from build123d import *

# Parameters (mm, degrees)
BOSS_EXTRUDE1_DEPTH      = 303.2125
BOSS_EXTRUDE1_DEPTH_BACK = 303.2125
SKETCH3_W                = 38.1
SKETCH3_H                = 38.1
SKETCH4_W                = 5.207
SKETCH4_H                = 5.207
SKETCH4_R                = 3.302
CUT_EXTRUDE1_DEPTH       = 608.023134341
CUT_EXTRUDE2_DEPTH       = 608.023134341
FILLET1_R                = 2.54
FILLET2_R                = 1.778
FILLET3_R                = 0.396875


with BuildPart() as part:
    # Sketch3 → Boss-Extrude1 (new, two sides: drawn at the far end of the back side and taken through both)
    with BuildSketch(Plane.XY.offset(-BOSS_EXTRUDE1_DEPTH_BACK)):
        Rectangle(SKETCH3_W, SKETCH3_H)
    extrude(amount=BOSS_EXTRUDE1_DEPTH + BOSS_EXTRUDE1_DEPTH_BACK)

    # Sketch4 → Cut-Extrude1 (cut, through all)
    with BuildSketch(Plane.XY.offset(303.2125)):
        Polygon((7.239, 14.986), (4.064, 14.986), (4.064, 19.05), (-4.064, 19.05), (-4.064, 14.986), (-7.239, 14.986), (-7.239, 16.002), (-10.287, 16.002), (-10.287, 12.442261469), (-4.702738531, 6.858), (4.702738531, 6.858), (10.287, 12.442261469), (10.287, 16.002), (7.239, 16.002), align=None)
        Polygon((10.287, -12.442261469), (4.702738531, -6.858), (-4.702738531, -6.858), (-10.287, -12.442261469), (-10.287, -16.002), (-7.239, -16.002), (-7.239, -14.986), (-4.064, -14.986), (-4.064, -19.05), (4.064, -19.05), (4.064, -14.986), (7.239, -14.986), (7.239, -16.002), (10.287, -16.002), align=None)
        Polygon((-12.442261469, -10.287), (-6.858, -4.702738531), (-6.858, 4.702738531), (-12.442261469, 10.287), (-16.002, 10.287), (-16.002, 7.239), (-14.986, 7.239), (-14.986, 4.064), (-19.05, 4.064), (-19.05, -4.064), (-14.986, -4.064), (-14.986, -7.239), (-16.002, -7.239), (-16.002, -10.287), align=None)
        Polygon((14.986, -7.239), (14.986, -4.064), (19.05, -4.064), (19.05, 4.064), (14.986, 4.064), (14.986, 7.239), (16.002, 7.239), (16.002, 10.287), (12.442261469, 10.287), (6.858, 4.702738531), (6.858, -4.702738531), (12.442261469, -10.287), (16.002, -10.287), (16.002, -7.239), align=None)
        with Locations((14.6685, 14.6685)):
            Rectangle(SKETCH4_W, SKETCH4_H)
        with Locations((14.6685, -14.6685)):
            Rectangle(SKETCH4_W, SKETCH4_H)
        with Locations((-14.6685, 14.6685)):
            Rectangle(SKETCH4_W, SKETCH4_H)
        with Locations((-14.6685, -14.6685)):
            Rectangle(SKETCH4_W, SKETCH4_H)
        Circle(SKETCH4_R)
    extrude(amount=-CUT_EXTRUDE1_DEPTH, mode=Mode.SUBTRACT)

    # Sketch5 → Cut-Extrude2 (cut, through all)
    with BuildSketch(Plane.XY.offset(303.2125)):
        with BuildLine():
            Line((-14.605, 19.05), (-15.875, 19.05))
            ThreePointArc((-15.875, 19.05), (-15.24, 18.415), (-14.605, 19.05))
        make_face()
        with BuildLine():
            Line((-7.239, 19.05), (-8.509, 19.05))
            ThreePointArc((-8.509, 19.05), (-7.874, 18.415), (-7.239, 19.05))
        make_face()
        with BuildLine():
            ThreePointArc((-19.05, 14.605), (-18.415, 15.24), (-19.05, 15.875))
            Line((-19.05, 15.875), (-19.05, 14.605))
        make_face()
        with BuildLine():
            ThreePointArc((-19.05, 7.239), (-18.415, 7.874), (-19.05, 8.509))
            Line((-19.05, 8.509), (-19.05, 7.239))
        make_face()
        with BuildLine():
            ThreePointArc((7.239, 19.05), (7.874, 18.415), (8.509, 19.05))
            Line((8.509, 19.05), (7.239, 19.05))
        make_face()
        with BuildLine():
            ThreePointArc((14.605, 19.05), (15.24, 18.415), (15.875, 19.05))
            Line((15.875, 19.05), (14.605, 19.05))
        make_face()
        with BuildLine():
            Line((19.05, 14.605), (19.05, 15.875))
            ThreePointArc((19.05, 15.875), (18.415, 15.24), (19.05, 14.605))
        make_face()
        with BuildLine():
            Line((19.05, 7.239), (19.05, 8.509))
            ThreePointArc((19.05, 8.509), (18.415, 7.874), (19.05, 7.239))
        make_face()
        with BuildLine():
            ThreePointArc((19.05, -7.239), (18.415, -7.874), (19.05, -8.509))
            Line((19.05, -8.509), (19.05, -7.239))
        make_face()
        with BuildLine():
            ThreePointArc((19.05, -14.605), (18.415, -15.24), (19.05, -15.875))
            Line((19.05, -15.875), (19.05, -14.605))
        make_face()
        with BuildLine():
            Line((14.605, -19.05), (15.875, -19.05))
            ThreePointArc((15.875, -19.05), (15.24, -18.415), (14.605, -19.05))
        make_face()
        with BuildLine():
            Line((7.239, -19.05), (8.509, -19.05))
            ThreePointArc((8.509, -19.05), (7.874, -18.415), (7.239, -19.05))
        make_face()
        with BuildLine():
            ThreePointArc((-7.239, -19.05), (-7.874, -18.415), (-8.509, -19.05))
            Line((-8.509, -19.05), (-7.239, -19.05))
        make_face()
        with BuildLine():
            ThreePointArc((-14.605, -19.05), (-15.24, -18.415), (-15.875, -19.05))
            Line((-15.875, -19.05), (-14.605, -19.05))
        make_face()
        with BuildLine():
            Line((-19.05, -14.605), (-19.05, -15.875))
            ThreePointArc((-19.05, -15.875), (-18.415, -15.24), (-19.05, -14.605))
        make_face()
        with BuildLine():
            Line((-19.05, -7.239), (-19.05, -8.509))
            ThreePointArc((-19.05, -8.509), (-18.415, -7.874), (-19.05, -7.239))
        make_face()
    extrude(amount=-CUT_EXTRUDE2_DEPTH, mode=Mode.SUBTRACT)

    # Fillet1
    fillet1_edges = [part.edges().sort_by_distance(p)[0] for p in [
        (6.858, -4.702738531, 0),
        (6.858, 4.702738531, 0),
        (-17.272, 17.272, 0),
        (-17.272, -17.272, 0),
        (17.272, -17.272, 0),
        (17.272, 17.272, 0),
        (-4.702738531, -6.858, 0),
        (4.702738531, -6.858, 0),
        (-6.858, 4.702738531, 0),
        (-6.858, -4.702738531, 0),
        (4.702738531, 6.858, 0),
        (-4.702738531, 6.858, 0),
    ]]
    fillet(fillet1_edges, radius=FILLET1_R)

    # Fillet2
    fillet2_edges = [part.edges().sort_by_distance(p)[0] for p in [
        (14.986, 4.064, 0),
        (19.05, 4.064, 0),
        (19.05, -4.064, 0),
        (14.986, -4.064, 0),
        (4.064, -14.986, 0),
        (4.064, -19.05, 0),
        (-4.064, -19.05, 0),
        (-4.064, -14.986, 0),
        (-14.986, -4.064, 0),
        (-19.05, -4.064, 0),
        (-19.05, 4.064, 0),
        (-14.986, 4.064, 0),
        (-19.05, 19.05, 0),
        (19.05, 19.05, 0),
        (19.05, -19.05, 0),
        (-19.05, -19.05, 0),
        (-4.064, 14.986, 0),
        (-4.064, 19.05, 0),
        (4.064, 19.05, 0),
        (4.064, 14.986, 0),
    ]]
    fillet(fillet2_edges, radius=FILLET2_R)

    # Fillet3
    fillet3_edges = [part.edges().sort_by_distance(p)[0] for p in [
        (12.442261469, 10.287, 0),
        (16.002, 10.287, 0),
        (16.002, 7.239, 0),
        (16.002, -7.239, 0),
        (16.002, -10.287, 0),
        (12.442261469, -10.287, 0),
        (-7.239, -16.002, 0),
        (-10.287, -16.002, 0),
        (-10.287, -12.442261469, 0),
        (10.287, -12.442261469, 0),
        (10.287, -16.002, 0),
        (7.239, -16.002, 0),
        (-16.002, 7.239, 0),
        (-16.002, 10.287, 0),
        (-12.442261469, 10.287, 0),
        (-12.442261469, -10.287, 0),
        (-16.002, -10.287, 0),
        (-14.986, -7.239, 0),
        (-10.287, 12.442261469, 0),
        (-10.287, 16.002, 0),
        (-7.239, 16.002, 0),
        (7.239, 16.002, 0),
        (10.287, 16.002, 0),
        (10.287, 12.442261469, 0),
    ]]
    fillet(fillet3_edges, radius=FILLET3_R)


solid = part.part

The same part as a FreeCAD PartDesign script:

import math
import FreeCAD as App
import Part
import Sketcher
from FreeCAD import Vector
Q = App.Units.Quantity


def edges_at(feature, points):
    """Names of the edges that pass closest to the given points."""
    edges = feature.Shape.Edges
    near = lambda p: min(range(len(edges)), key=lambda i: edges[i].distToShape(Part.Vertex(*p))[0])
    return sorted({f"Edge{near(p) + 1}" for p in points})


def add_polygon(sketch, points):
    """Adds a closed chain of lines whose ends are joined by coincident constraints."""
    first, n = sketch.GeometryCount, len(points)
    for a, b in zip(points, points[1:] + points[:1]):
        sketch.addGeometry(Part.LineSegment(App.Vector(*a, 0), App.Vector(*b, 0)), False)
    for i in range(n):
        sketch.addConstraint(Sketcher.Constraint("Coincident", first + i, 2, first + (i + 1) % n, 1))

doc = App.newDocument("Part")
body = doc.addObject("PartDesign::Body", "Body")

# Sketch on XY plane
sketch1 = doc.addObject("Sketcher::SketchObject", "Sketch")
body.addObject(sketch1)
sketch1.AttachmentSupport = (doc.XY_Plane, [""])
sketch1.MapMode = "FlatFace"
add_polygon(sketch1, [(-19, 19), (-19, -19), (19, -19), (19, 19)])  # lines 0-3
sketch1.addConstraint(Sketcher.Constraint("Vertical", 0))
sketch1.addConstraint(Sketcher.Constraint("Horizontal", 1))
sketch1.addConstraint(Sketcher.Constraint("Vertical", 2))
sketch1.addConstraint(Sketcher.Constraint("Horizontal", 3))
sketch1.addConstraint(Sketcher.Constraint("Symmetric", 0, 2, 2, 2, -1, 1))
sketch1.addConstraint(Sketcher.Constraint("Equal", 3, 0))
sketch1.addConstraint(Sketcher.Constraint("DistanceX", 1, 1, 1, 2, Q("1.5 in")))
pad1 = doc.addObject("PartDesign::Pad", "Pad")
body.addObject(pad1)
pad1.Profile = sketch1
pad1.Type = "TwoLengths"
pad1.Length = Q("11.9375 in")
pad1.Length2 = Q("11.9375 in")

# Sketch on XY plane
sketch2 = doc.addObject("Sketcher::SketchObject", "Sketch001")
body.addObject(sketch2)
sketch2.AttachmentSupport = (doc.XY_Plane, [""])
sketch2.MapMode = "FlatFace"
sketch2.AttachmentOffset = App.Placement(Vector(0, 0, 11.9375 * 25.4), App.Rotation())
add_polygon(sketch2, [(7.2, 15), (4.1, 15), (4.1, 19.1), (-4.1, 19.1), (-4.1, 15), (-7.2, 15), (-7.2, 16), (-10.3, 16), (-10.3, 12.4), (-4.7, 6.9), (4.7, 6.9), (10.3, 12.4), (10.3, 16), (7.2, 16)])  # lines 0-13
add_polygon(sketch2, [(10.3, -12.4), (4.7, -6.9), (-4.7, -6.9), (-10.3, -12.4), (-10.3, -16), (-7.2, -16), (-7.2, -15), (-4.1, -15), (-4.1, -19.1), (4.1, -19.1), (4.1, -15), (7.2, -15), (7.2, -16), (10.3, -16)])  # lines 14-27
add_polygon(sketch2, [(-12.4, -10.3), (-6.9, -4.7), (-6.9, 4.7), (-12.4, 10.3), (-16, 10.3), (-16, 7.2), (-15, 7.2), (-15, 4.1), (-19.1, 4.1), (-19.1, -4.1), (-15, -4.1), (-15, -7.2), (-16, -7.2), (-16, -10.3)])  # lines 28-41
add_polygon(sketch2, [(15, -7.2), (15, -4.1), (19.1, -4.1), (19.1, 4.1), (15, 4.1), (15, 7.2), (16, 7.2), (16, 10.3), (12.4, 10.3), (6.9, 4.7), (6.9, -4.7), (12.4, -10.3), (16, -10.3), (16, -7.2)])  # lines 42-55
add_polygon(sketch2, [(12.1, 17.3), (12.1, 12.1), (17.3, 12.1), (17.3, 17.3)])  # lines 56-59
add_polygon(sketch2, [(12.1, -12.1), (12.1, -17.3), (17.3, -17.3), (17.3, -12.1)])  # lines 60-63
add_polygon(sketch2, [(-17.3, 17.3), (-17.3, 12.1), (-12.1, 12.1), (-12.1, 17.3)])  # lines 64-67
add_polygon(sketch2, [(-17.3, -12.1), (-17.3, -17.3), (-12.1, -17.3), (-12.1, -12.1)])  # lines 68-71
sketch2.addGeometry(Part.Circle(Vector(0, 0, 0), Vector(0, 0, 1), 3.3), False)  # 72
sketch2.addConstraint(Sketcher.Constraint("Horizontal", 0))
sketch2.addConstraint(Sketcher.Constraint("Vertical", 1))
sketch2.addConstraint(Sketcher.Constraint("Horizontal", 2))
sketch2.addConstraint(Sketcher.Constraint("Vertical", 3))
sketch2.addConstraint(Sketcher.Constraint("Horizontal", 4))
sketch2.addConstraint(Sketcher.Constraint("Vertical", 5))
sketch2.addConstraint(Sketcher.Constraint("Horizontal", 6))
sketch2.addConstraint(Sketcher.Constraint("Vertical", 7))
sketch2.addConstraint(Sketcher.Constraint("Horizontal", 9))
sketch2.addConstraint(Sketcher.Constraint("Vertical", 11))
sketch2.addConstraint(Sketcher.Constraint("Horizontal", 12))
sketch2.addConstraint(Sketcher.Constraint("Vertical", 13))
sketch2.addConstraint(Sketcher.Constraint("Horizontal", 15))
sketch2.addConstraint(Sketcher.Constraint("Vertical", 17))
sketch2.addConstraint(Sketcher.Constraint("Horizontal", 18))
sketch2.addConstraint(Sketcher.Constraint("Vertical", 19))
sketch2.addConstraint(Sketcher.Constraint("Horizontal", 20))
sketch2.addConstraint(Sketcher.Constraint("Vertical", 21))
sketch2.addConstraint(Sketcher.Constraint("Horizontal", 22))
sketch2.addConstraint(Sketcher.Constraint("Vertical", 23))
sketch2.addConstraint(Sketcher.Constraint("Horizontal", 24))
sketch2.addConstraint(Sketcher.Constraint("Vertical", 25))
sketch2.addConstraint(Sketcher.Constraint("Horizontal", 26))
sketch2.addConstraint(Sketcher.Constraint("Vertical", 27))
sketch2.addConstraint(Sketcher.Constraint("Vertical", 29))
sketch2.addConstraint(Sketcher.Constraint("Horizontal", 31))
sketch2.addConstraint(Sketcher.Constraint("Vertical", 32))
sketch2.addConstraint(Sketcher.Constraint("Horizontal", 33))
sketch2.addConstraint(Sketcher.Constraint("Vertical", 34))
sketch2.addConstraint(Sketcher.Constraint("Horizontal", 35))
sketch2.addConstraint(Sketcher.Constraint("Vertical", 36))
sketch2.addConstraint(Sketcher.Constraint("Horizontal", 37))
sketch2.addConstraint(Sketcher.Constraint("Vertical", 38))
sketch2.addConstraint(Sketcher.Constraint("Horizontal", 39))
sketch2.addConstraint(Sketcher.Constraint("Vertical", 40))
sketch2.addConstraint(Sketcher.Constraint("Horizontal", 41))
sketch2.addConstraint(Sketcher.Constraint("Vertical", 42))
sketch2.addConstraint(Sketcher.Constraint("Horizontal", 43))
sketch2.addConstraint(Sketcher.Constraint("Vertical", 44))
sketch2.addConstraint(Sketcher.Constraint("Horizontal", 45))
sketch2.addConstraint(Sketcher.Constraint("Vertical", 46))
sketch2.addConstraint(Sketcher.Constraint("Horizontal", 47))
sketch2.addConstraint(Sketcher.Constraint("Vertical", 48))
sketch2.addConstraint(Sketcher.Constraint("Horizontal", 49))
sketch2.addConstraint(Sketcher.Constraint("Vertical", 51))
sketch2.addConstraint(Sketcher.Constraint("Horizontal", 53))
sketch2.addConstraint(Sketcher.Constraint("Vertical", 54))
sketch2.addConstraint(Sketcher.Constraint("Horizontal", 55))
sketch2.addConstraint(Sketcher.Constraint("Vertical", 56))
sketch2.addConstraint(Sketcher.Constraint("Horizontal", 57))
sketch2.addConstraint(Sketcher.Constraint("Vertical", 58))
sketch2.addConstraint(Sketcher.Constraint("Horizontal", 59))
sketch2.addConstraint(Sketcher.Constraint("Vertical", 60))
sketch2.addConstraint(Sketcher.Constraint("Horizontal", 61))
sketch2.addConstraint(Sketcher.Constraint("Vertical", 62))
sketch2.addConstraint(Sketcher.Constraint("Horizontal", 63))
sketch2.addConstraint(Sketcher.Constraint("Vertical", 64))
sketch2.addConstraint(Sketcher.Constraint("Horizontal", 65))
sketch2.addConstraint(Sketcher.Constraint("Vertical", 66))
sketch2.addConstraint(Sketcher.Constraint("Horizontal", 67))
sketch2.addConstraint(Sketcher.Constraint("Vertical", 68))
sketch2.addConstraint(Sketcher.Constraint("Horizontal", 69))
sketch2.addConstraint(Sketcher.Constraint("Vertical", 70))
sketch2.addConstraint(Sketcher.Constraint("Horizontal", 71))
sketch2.addConstraint(Sketcher.Constraint("Coincident", 72, 3, -1, 1))
sketch2.addConstraint(Sketcher.Constraint("Symmetric", 8, 2, 14, 2, -1, 1))
sketch2.addConstraint(Sketcher.Constraint("Symmetric", 10, 2, 16, 2, -1, 1))
sketch2.addConstraint(Sketcher.Constraint("Symmetric", 12, 2, 18, 2, -1, 1))
sketch2.addConstraint(Sketcher.Constraint("Symmetric", 0, 2, 20, 2, -1, 1))
sketch2.addConstraint(Sketcher.Constraint("Symmetric", 2, 2, 22, 2, -1, 1))
sketch2.addConstraint(Sketcher.Constraint("Symmetric", 4, 2, 24, 2, -1, 1))
sketch2.addConstraint(Sketcher.Constraint("Symmetric", 6, 2, 26, 2, -1, 1))
sketch2.addConstraint(Sketcher.Constraint("Symmetric", 34, 2, 42, 2, -1, 1))
sketch2.addConstraint(Sketcher.Constraint("Symmetric", 36, 2, 44, 2, -1, 1))
sketch2.addConstraint(Sketcher.Constraint("Symmetric", 38, 2, 46, 2, -1, 1))
sketch2.addConstraint(Sketcher.Constraint("Symmetric", 40, 2, 48, 2, -1, 1))
sketch2.addConstraint(Sketcher.Constraint("Symmetric", 28, 2, 50, 2, -1, 1))
sketch2.addConstraint(Sketcher.Constraint("Symmetric", 30, 2, 52, 2, -1, 1))
sketch2.addConstraint(Sketcher.Constraint("Symmetric", 32, 2, 54, 2, -1, 1))
sketch2.addConstraint(Sketcher.Constraint("Symmetric", 62, 2, 64, 2, -1, 1))
sketch2.addConstraint(Sketcher.Constraint("Symmetric", 60, 2, 66, 2, -1, 1))
sketch2.addConstraint(Sketcher.Constraint("Symmetric", 58, 2, 68, 2, -1, 1))
sketch2.addConstraint(Sketcher.Constraint("Symmetric", 56, 2, 70, 2, -1, 1))
sketch2.addConstraint(Sketcher.Constraint("Symmetric", 0, 2, 3, 2, -2))
sketch2.addConstraint(Sketcher.Constraint("Symmetric", 7, 2, 10, 2, -2))
sketch2.addConstraint(Sketcher.Constraint("Symmetric", 5, 2, 12, 2, -2))
sketch2.addConstraint(Sketcher.Constraint("Symmetric", 37, 2, 42, 2, -2))
sketch2.addConstraint(Sketcher.Constraint("Symmetric", 32, 2, 47, 2, -2))
sketch2.addConstraint(Sketcher.Constraint("Symmetric", 30, 2, 49, 2, -2))
sketch2.addConstraint(Sketcher.Constraint("Symmetric", 57, 2, 64, 2, -2))
sketch2.addConstraint(Sketcher.Constraint("Symmetric", 59, 2, 66, 2, -2))
sketch2.addConstraint(Sketcher.Constraint("Perpendicular", 8, 10))
sketch2.addConstraint(Sketcher.Constraint("Perpendicular", 10, 14))
sketch2.addConstraint(Sketcher.Constraint("Perpendicular", 14, 16))
sketch2.addConstraint(Sketcher.Constraint("Parallel", 16, 28))
sketch2.addConstraint(Sketcher.Constraint("Perpendicular", 28, 30))
sketch2.addConstraint(Sketcher.Constraint("Perpendicular", 30, 50))
sketch2.addConstraint(Sketcher.Constraint("Perpendicular", 50, 52))
sketch2.addConstraint(Sketcher.Constraint("Horizontal", 29, 2, 50, 2))
sketch2.addConstraint(Sketcher.Constraint("Equal", 45, 1))
sketch2.addConstraint(Sketcher.Constraint("Equal", 55, 5))
sketch2.addConstraint(Sketcher.Constraint("Equal", 53, 7))
sketch2.addConstraint(Sketcher.Constraint("Equal", 15, 29))
sketch2.addConstraint(Sketcher.Constraint("Equal", 26, 32))
sketch2.addConstraint(Sketcher.Constraint("Equal", 24, 34))
sketch2.addConstraint(Sketcher.Constraint("Equal", 22, 36))
sketch2.addConstraint(Sketcher.Constraint("Equal", 71, 56))
sketch2.addConstraint(Sketcher.Constraint("Diameter", 72, Q("0.26 in")))
sketch2.addConstraint(Sketcher.Constraint("DistanceX", 2, 2, 2, 1, Q("0.32 in")))
sketch2.addConstraint(Sketcher.Constraint("DistanceX", 6, 2, 6, 1, Q("0.12 in")))
sketch2.addConstraint(Sketcher.Constraint("DistanceX", 33, 1, 33, 2, Q("0.04 in")))
sketch2.addConstraint(Sketcher.Constraint("DistanceX", 35, 2, 35, 1, Q("0.16 in")))
sketch2.addConstraint(Sketcher.Constraint("DistanceX", 0, 2, 0, 1, Q("0.125 in")))
sketch2.addConstraint(Sketcher.Constraint("DistanceX", 57, 1, 57, 2, Q("0.205 in")))
sketch2.addConstraint(Sketcher.Constraint("DistanceY", -1, 1, 0, 2, Q("0.59 in")))
sketch2.addConstraint(Sketcher.Constraint("DistanceY", -1, 1, 8, 2, Q("0.27 in")))
sketch2.addConstraint(Sketcher.Constraint("DistanceX", 28, 2, -1, 1, Q("0.27 in")))
sketch2.addConstraint(Sketcher.Constraint("DistanceX", -1, 1, 57, 2, Q("0.68 in")))
sketch2.addConstraint(Sketcher.Constraint("DistanceY", -1, 1, 58, 2, Q("0.68 in")))
sketch2.addConstraint(Sketcher.Constraint("DistanceX", 31, 2, 31, 1, 3.559739))
pocket1 = doc.addObject("PartDesign::Pocket", "Pocket")
body.addObject(pocket1)
pocket1.Profile = sketch2
pocket1.Type = "ThroughAll"

# Sketch on XY plane
sketch3 = doc.addObject("Sketcher::SketchObject", "Sketch002")
body.addObject(sketch3)
sketch3.AttachmentSupport = (doc.XY_Plane, [""])
sketch3.MapMode = "FlatFace"
sketch3.AttachmentOffset = App.Placement(Vector(0, 0, 11.9375 * 25.4), App.Rotation())
sketch3.addGeometry(Part.LineSegment(Vector(-14.6, 19.1, 0), Vector(-15.9, 19.1, 0)), False)
sketch3.addGeometry(Part.ArcOfCircle(Part.Circle(Vector(-15.2, 19.1, 0), Vector(0, 0, 1), 0.6), math.radians(180), math.radians(360)), False)
sketch3.addGeometry(Part.LineSegment(Vector(-7.2, 19.1, 0), Vector(-8.5, 19.1, 0)), False)
sketch3.addGeometry(Part.ArcOfCircle(Part.Circle(Vector(-7.9, 19.1, 0), Vector(0, 0, 1), 0.6), math.radians(180), math.radians(360)), False)
sketch3.addGeometry(Part.ArcOfCircle(Part.Circle(Vector(-19.1, 15.2, 0), Vector(0, 0, 1), 0.6), math.radians(-90), math.radians(90)), False)
sketch3.addGeometry(Part.LineSegment(Vector(-19.1, 15.9, 0), Vector(-19.1, 14.6, 0)), False)
sketch3.addGeometry(Part.ArcOfCircle(Part.Circle(Vector(-19.1, 7.9, 0), Vector(0, 0, 1), 0.6), math.radians(-90), math.radians(90)), False)
sketch3.addGeometry(Part.LineSegment(Vector(-19.1, 8.5, 0), Vector(-19.1, 7.2, 0)), False)
sketch3.addGeometry(Part.ArcOfCircle(Part.Circle(Vector(7.9, 19.1, 0), Vector(0, 0, 1), 0.6), math.radians(180), math.radians(360)), False)
sketch3.addGeometry(Part.LineSegment(Vector(8.5, 19.1, 0), Vector(7.2, 19.1, 0)), False)
sketch3.addGeometry(Part.ArcOfCircle(Part.Circle(Vector(15.2, 19.1, 0), Vector(0, 0, 1), 0.6), math.radians(180), math.radians(360)), False)
sketch3.addGeometry(Part.LineSegment(Vector(15.9, 19.1, 0), Vector(14.6, 19.1, 0)), False)
sketch3.addGeometry(Part.LineSegment(Vector(19.1, 14.6, 0), Vector(19.1, 15.9, 0)), False)
sketch3.addGeometry(Part.ArcOfCircle(Part.Circle(Vector(19.1, 15.2, 0), Vector(0, 0, 1), 0.6), math.radians(90), math.radians(270)), False)
sketch3.addGeometry(Part.LineSegment(Vector(19.1, 7.2, 0), Vector(19.1, 8.5, 0)), False)
sketch3.addGeometry(Part.ArcOfCircle(Part.Circle(Vector(19.1, 7.9, 0), Vector(0, 0, 1), 0.6), math.radians(90), math.radians(270)), False)
sketch3.addGeometry(Part.ArcOfCircle(Part.Circle(Vector(19.1, -7.9, 0), Vector(0, 0, 1), 0.6), math.radians(90), math.radians(270)), False)
sketch3.addGeometry(Part.LineSegment(Vector(19.1, -8.5, 0), Vector(19.1, -7.2, 0)), False)
sketch3.addGeometry(Part.ArcOfCircle(Part.Circle(Vector(19.1, -15.2, 0), Vector(0, 0, 1), 0.6), math.radians(90), math.radians(270)), False)
sketch3.addGeometry(Part.LineSegment(Vector(19.1, -15.9, 0), Vector(19.1, -14.6, 0)), False)
sketch3.addGeometry(Part.LineSegment(Vector(14.6, -19.1, 0), Vector(15.9, -19.1, 0)), False)
sketch3.addGeometry(Part.ArcOfCircle(Part.Circle(Vector(15.2, -19.1, 0), Vector(0, 0, 1), 0.6), math.radians(0), math.radians(180)), False)
sketch3.addGeometry(Part.LineSegment(Vector(7.2, -19.1, 0), Vector(8.5, -19.1, 0)), False)
sketch3.addGeometry(Part.ArcOfCircle(Part.Circle(Vector(7.9, -19.1, 0), Vector(0, 0, 1), 0.6), math.radians(0), math.radians(180)), False)
sketch3.addGeometry(Part.ArcOfCircle(Part.Circle(Vector(-7.9, -19.1, 0), Vector(0, 0, 1), 0.6), math.radians(0), math.radians(180)), False)
sketch3.addGeometry(Part.LineSegment(Vector(-8.5, -19.1, 0), Vector(-7.2, -19.1, 0)), False)
sketch3.addGeometry(Part.ArcOfCircle(Part.Circle(Vector(-15.2, -19.1, 0), Vector(0, 0, 1), 0.6), math.radians(0), math.radians(180)), False)
sketch3.addGeometry(Part.LineSegment(Vector(-15.9, -19.1, 0), Vector(-14.6, -19.1, 0)), False)
sketch3.addGeometry(Part.LineSegment(Vector(-19.1, -14.6, 0), Vector(-19.1, -15.9, 0)), False)
sketch3.addGeometry(Part.ArcOfCircle(Part.Circle(Vector(-19.1, -15.2, 0), Vector(0, 0, 1), 0.6), math.radians(-90), math.radians(90)), False)
sketch3.addGeometry(Part.LineSegment(Vector(-19.1, -7.2, 0), Vector(-19.1, -8.5, 0)), False)
sketch3.addGeometry(Part.ArcOfCircle(Part.Circle(Vector(-19.1, -7.9, 0), Vector(0, 0, 1), 0.6), math.radians(-90), math.radians(90)), False)
sketch3.addConstraint(Sketcher.Constraint("Coincident", 0, 1, 1, 2))
sketch3.addConstraint(Sketcher.Constraint("Coincident", 1, 1, 0, 2))
sketch3.addConstraint(Sketcher.Constraint("Coincident", 2, 1, 3, 2))
sketch3.addConstraint(Sketcher.Constraint("Coincident", 3, 1, 2, 2))
sketch3.addConstraint(Sketcher.Constraint("Coincident", 4, 1, 5, 2))
sketch3.addConstraint(Sketcher.Constraint("Coincident", 5, 1, 4, 2))
sketch3.addConstraint(Sketcher.Constraint("Coincident", 6, 1, 7, 2))
sketch3.addConstraint(Sketcher.Constraint("Coincident", 7, 1, 6, 2))
sketch3.addConstraint(Sketcher.Constraint("Coincident", 8, 1, 9, 2))
sketch3.addConstraint(Sketcher.Constraint("Coincident", 9, 1, 8, 2))
sketch3.addConstraint(Sketcher.Constraint("Coincident", 10, 1, 11, 2))
sketch3.addConstraint(Sketcher.Constraint("Coincident", 11, 1, 10, 2))
sketch3.addConstraint(Sketcher.Constraint("Coincident", 12, 1, 13, 2))
sketch3.addConstraint(Sketcher.Constraint("Coincident", 13, 1, 12, 2))
sketch3.addConstraint(Sketcher.Constraint("Coincident", 14, 1, 15, 2))
sketch3.addConstraint(Sketcher.Constraint("Coincident", 15, 1, 14, 2))
sketch3.addConstraint(Sketcher.Constraint("Coincident", 16, 1, 17, 2))
sketch3.addConstraint(Sketcher.Constraint("Coincident", 17, 1, 16, 2))
sketch3.addConstraint(Sketcher.Constraint("Coincident", 18, 1, 19, 2))
sketch3.addConstraint(Sketcher.Constraint("Coincident", 19, 1, 18, 2))
sketch3.addConstraint(Sketcher.Constraint("Coincident", 20, 1, 21, 2))
sketch3.addConstraint(Sketcher.Constraint("Coincident", 21, 1, 20, 2))
sketch3.addConstraint(Sketcher.Constraint("Coincident", 22, 1, 23, 2))
sketch3.addConstraint(Sketcher.Constraint("Coincident", 23, 1, 22, 2))
sketch3.addConstraint(Sketcher.Constraint("Coincident", 24, 1, 25, 2))
sketch3.addConstraint(Sketcher.Constraint("Coincident", 25, 1, 24, 2))
sketch3.addConstraint(Sketcher.Constraint("Coincident", 26, 1, 27, 2))
sketch3.addConstraint(Sketcher.Constraint("Coincident", 27, 1, 26, 2))
sketch3.addConstraint(Sketcher.Constraint("Coincident", 28, 1, 29, 2))
sketch3.addConstraint(Sketcher.Constraint("Coincident", 29, 1, 28, 2))
sketch3.addConstraint(Sketcher.Constraint("Coincident", 30, 1, 31, 2))
sketch3.addConstraint(Sketcher.Constraint("Coincident", 31, 1, 30, 2))
sketch3.addConstraint(Sketcher.Constraint("Horizontal", 0))
sketch3.addConstraint(Sketcher.Constraint("Horizontal", 2))
sketch3.addConstraint(Sketcher.Constraint("Vertical", 5))
sketch3.addConstraint(Sketcher.Constraint("Vertical", 7))
sketch3.addConstraint(Sketcher.Constraint("Horizontal", 9))
sketch3.addConstraint(Sketcher.Constraint("Horizontal", 11))
sketch3.addConstraint(Sketcher.Constraint("Vertical", 12))
sketch3.addConstraint(Sketcher.Constraint("Vertical", 14))
sketch3.addConstraint(Sketcher.Constraint("Vertical", 17))
sketch3.addConstraint(Sketcher.Constraint("Vertical", 19))
sketch3.addConstraint(Sketcher.Constraint("Horizontal", 20))
sketch3.addConstraint(Sketcher.Constraint("Horizontal", 22))
sketch3.addConstraint(Sketcher.Constraint("Horizontal", 25))
sketch3.addConstraint(Sketcher.Constraint("Horizontal", 27))
sketch3.addConstraint(Sketcher.Constraint("Vertical", 28))
sketch3.addConstraint(Sketcher.Constraint("Vertical", 30))
sketch3.addConstraint(Sketcher.Constraint("Equal", 1, 3))
sketch3.addConstraint(Sketcher.Constraint("Equal", 3, 4))
sketch3.addConstraint(Sketcher.Constraint("Equal", 4, 6))
sketch3.addConstraint(Sketcher.Constraint("Equal", 6, 8))
sketch3.addConstraint(Sketcher.Constraint("Equal", 8, 10))
sketch3.addConstraint(Sketcher.Constraint("Equal", 10, 13))
sketch3.addConstraint(Sketcher.Constraint("Equal", 13, 15))
sketch3.addConstraint(Sketcher.Constraint("Equal", 15, 16))
sketch3.addConstraint(Sketcher.Constraint("Equal", 16, 18))
sketch3.addConstraint(Sketcher.Constraint("Equal", 18, 21))
sketch3.addConstraint(Sketcher.Constraint("Equal", 21, 23))
sketch3.addConstraint(Sketcher.Constraint("Equal", 23, 24))
sketch3.addConstraint(Sketcher.Constraint("Equal", 24, 26))
sketch3.addConstraint(Sketcher.Constraint("Equal", 26, 29))
sketch3.addConstraint(Sketcher.Constraint("Equal", 29, 31))
sketch3.addConstraint(Sketcher.Constraint("Symmetric", 6, 3, 16, 3, -1, 1))
sketch3.addConstraint(Sketcher.Constraint("Symmetric", 4, 3, 18, 3, -1, 1))
sketch3.addConstraint(Sketcher.Constraint("Symmetric", 1, 3, 21, 3, -1, 1))
sketch3.addConstraint(Sketcher.Constraint("Symmetric", 3, 3, 23, 3, -1, 1))
sketch3.addConstraint(Sketcher.Constraint("Symmetric", 8, 3, 24, 3, -1, 1))
sketch3.addConstraint(Sketcher.Constraint("Symmetric", 10, 3, 26, 3, -1, 1))
sketch3.addConstraint(Sketcher.Constraint("Symmetric", 13, 3, 29, 3, -1, 1))
sketch3.addConstraint(Sketcher.Constraint("Symmetric", 15, 3, 31, 3, -1, 1))
sketch3.addConstraint(Sketcher.Constraint("Symmetric", 3, 3, 8, 3, -2))
sketch3.addConstraint(Sketcher.Constraint("Symmetric", 1, 3, 10, 3, -2))
sketch3.addConstraint(Sketcher.Constraint("Symmetric", 4, 3, 13, 3, -2))
sketch3.addConstraint(Sketcher.Constraint("Symmetric", 6, 3, 15, 3, -2))
sketch3.addConstraint(Sketcher.Constraint("Horizontal", 1, 3, 3, 3))
sketch3.addConstraint(Sketcher.Constraint("Horizontal", 10, 3, 0, 1))
sketch3.addConstraint(Sketcher.Constraint("Horizontal", 1, 1, 2, 1))
sketch3.addConstraint(Sketcher.Constraint("Horizontal", 3, 1, 8, 1))
sketch3.addConstraint(Sketcher.Constraint("Horizontal", 9, 1, 10, 1))
sketch3.addConstraint(Sketcher.Constraint("Horizontal", 26, 3, 20, 1))
sketch3.addConstraint(Sketcher.Constraint("Horizontal", 21, 1, 22, 1))
sketch3.addConstraint(Sketcher.Constraint("Horizontal", 23, 1, 24, 1))
sketch3.addConstraint(Sketcher.Constraint("Horizontal", 25, 1, 26, 1))
sketch3.addConstraint(Sketcher.Constraint("Vertical", 4, 3, 6, 3))
sketch3.addConstraint(Sketcher.Constraint("Vertical", 31, 3, 4, 1))
sketch3.addConstraint(Sketcher.Constraint("Vertical", 5, 1, 6, 1))
sketch3.addConstraint(Sketcher.Constraint("Vertical", 18, 3, 12, 1))
sketch3.addConstraint(Sketcher.Constraint("Vertical", 13, 1, 14, 1))
sketch3.addConstraint(Sketcher.Constraint("Vertical", 15, 1, 16, 1))
sketch3.addConstraint(Sketcher.Constraint("Vertical", 17, 1, 18, 1))
sketch3.addConstraint(Sketcher.Constraint("Vertical", 7, 1, 28, 1))
sketch3.addConstraint(Sketcher.Constraint("Vertical", 29, 1, 30, 1))
sketch3.addConstraint(Sketcher.Constraint("Radius", 1, Q("0.025 in")))
sketch3.addConstraint(Sketcher.Constraint("DistanceX", 1, 3, -1, 1, Q("0.6 in")))
sketch3.addConstraint(Sketcher.Constraint("DistanceY", -1, 1, 4, 3, Q("0.6 in")))
sketch3.addConstraint(Sketcher.Constraint("DistanceX", 4, 3, 13, 3, Q("1.5 in")))
sketch3.addConstraint(Sketcher.Constraint("DistanceY", 21, 3, 10, 3, Q("1.5 in")))
sketch3.addConstraint(Sketcher.Constraint("DistanceX", 3, 3, -1, 1, Q("0.31 in")))
sketch3.addConstraint(Sketcher.Constraint("DistanceY", -1, 1, 6, 3, Q("0.31 in")))
pocket2 = doc.addObject("PartDesign::Pocket", "Pocket001")
body.addObject(pocket2)
pocket2.Profile = sketch3
pocket2.Type = "ThroughAll"
doc.recompute()

fillet = doc.addObject("PartDesign::Fillet", "Fillet")
body.addObject(fillet)
fillet.Base = (pocket2, edges_at(pocket2, [
    (6.858, -4.703, 0),
    (6.858, 4.703, 0),
    (-17.272, 17.272, 0),
    (-17.272, -17.272, 0),
    (17.272, -17.272, 0),
    (17.272, 17.272, 0),
    (-4.703, -6.858, 0),
    (4.703, -6.858, 0),
    (-6.858, 4.703, 0),
    (-6.858, -4.703, 0),
    (4.703, 6.858, 0),
    (-4.703, 6.858, 0),
]))
fillet.Radius = Q("0.1 in")
doc.recompute()

fillet2 = doc.addObject("PartDesign::Fillet", "Fillet001")
body.addObject(fillet2)
fillet2.Base = (fillet, edges_at(fillet, [
    (14.986, 4.064, 0),
    (19.05, 4.064, 0),
    (19.05, -4.064, 0),
    (14.986, -4.064, 0),
    (4.064, -14.986, 0),
    (4.064, -19.05, 0),
    (-4.064, -19.05, 0),
    (-4.064, -14.986, 0),
    (-14.986, -4.064, 0),
    (-19.05, -4.064, 0),
    (-19.05, 4.064, 0),
    (-14.986, 4.064, 0),
    (-19.05, 19.05, 0),
    (19.05, 19.05, 0),
    (19.05, -19.05, 0),
    (-19.05, -19.05, 0),
    (-4.064, 14.986, 0),
    (-4.064, 19.05, 0),
    (4.064, 19.05, 0),
    (4.064, 14.986, 0),
]))
fillet2.Radius = Q("0.07 in")
doc.recompute()

fillet3 = doc.addObject("PartDesign::Fillet", "Fillet002")
body.addObject(fillet3)
fillet3.Base = (fillet2, edges_at(fillet2, [
    (12.442, 10.287, 0),
    (16.002, 10.287, 0),
    (16.002, 7.239, 0),
    (16.002, -7.239, 0),
    (16.002, -10.287, 0),
    (12.442, -10.287, 0),
    (-7.239, -16.002, 0),
    (-10.287, -16.002, 0),
    (-10.287, -12.442, 0),
    (10.287, -12.442, 0),
    (10.287, -16.002, 0),
    (7.239, -16.002, 0),
    (-16.002, 7.239, 0),
    (-16.002, 10.287, 0),
    (-12.442, 10.287, 0),
    (-12.442, -10.287, 0),
    (-16.002, -10.287, 0),
    (-14.986, -7.239, 0),
    (-10.287, 12.442, 0),
    (-10.287, 16.002, 0),
    (-7.239, 16.002, 0),
    (7.239, 16.002, 0),
    (10.287, 16.002, 0),
    (10.287, 12.442, 0),
]))
fillet3.Radius = Q("0.015625 in")

doc.recompute()
